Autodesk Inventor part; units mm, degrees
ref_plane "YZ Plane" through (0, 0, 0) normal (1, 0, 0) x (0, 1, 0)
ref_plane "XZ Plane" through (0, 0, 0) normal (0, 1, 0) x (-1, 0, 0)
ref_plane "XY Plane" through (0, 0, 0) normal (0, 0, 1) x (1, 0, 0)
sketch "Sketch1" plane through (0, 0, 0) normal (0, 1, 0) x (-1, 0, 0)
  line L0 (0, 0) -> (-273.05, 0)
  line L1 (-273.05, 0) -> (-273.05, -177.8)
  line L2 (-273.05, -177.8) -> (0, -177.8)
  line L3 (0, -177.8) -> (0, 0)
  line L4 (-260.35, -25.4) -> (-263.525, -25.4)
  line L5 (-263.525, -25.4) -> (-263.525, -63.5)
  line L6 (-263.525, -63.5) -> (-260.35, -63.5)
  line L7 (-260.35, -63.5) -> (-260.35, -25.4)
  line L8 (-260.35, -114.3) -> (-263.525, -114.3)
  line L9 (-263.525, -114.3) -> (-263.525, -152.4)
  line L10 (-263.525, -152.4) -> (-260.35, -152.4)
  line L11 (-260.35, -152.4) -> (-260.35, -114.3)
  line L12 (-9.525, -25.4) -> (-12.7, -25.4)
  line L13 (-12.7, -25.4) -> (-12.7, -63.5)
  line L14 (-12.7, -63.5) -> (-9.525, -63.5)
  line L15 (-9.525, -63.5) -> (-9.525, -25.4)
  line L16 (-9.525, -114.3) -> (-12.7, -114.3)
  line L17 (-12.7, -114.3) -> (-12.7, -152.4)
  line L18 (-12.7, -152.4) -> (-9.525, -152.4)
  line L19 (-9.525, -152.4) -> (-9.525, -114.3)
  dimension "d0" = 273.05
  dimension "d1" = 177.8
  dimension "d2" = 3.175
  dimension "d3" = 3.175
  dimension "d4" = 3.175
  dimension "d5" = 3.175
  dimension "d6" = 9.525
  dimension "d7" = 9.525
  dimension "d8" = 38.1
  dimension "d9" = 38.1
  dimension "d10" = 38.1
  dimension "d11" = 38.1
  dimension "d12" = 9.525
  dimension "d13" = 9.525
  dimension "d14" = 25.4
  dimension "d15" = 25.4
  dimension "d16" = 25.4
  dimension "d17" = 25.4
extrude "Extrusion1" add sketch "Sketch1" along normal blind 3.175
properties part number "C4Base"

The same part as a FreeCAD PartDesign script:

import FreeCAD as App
import Part
import Sketcher
from FreeCAD import Vector
Q = App.Units.Quantity


def add_polygon(sketch, points):
    """Adds a closed chain of lines whose ends are joined by coincident constraints."""
    first, n = sketch.GeometryCount, len(points)
    for a, b in zip(points, points[1:] + points[:1]):
        sketch.addGeometry(Part.LineSegment(App.Vector(*a, 0), App.Vector(*b, 0)), False)
    for i in range(n):
        sketch.addConstraint(Sketcher.Constraint("Coincident", first + i, 2, first + (i + 1) % n, 1))

doc = App.newDocument("Part")
body = doc.addObject("PartDesign::Body", "Body")

# Sketch on XZ plane
sketch1 = doc.addObject("Sketcher::SketchObject", "Sketch")
body.addObject(sketch1)
sketch1.AttachmentSupport = (doc.XZ_Plane, [""])
sketch1.MapMode = "FlatFace"
add_polygon(sketch1, [(0, -177.8), (0, 0), (273.1, 0), (273.1, -177.8)])  # lines 0-3
add_polygon(sketch1, [(263.5, -114.3), (260.4, -114.3), (260.4, -152.4), (263.5, -152.4)])  # lines 4-7
add_polygon(sketch1, [(12.7, -114.3), (9.5, -114.3), (9.5, -152.4), (12.7, -152.4)])  # lines 8-11
add_polygon(sketch1, [(263.5, -25.4), (260.4, -25.4), (260.4, -63.5), (263.5, -63.5)])  # lines 12-15
add_polygon(sketch1, [(12.7, -25.4), (9.5, -25.4), (9.5, -63.5), (12.7, -63.5)])  # lines 16-19
sketch1.addConstraint(Sketcher.Constraint("Vertical", 0))
sketch1.addConstraint(Sketcher.Constraint("Horizontal", 1))
sketch1.addConstraint(Sketcher.Constraint("Vertical", 2))
sketch1.addConstraint(Sketcher.Constraint("Horizontal", 3))
sketch1.addConstraint(Sketcher.Constraint("Horizontal", 4))
sketch1.addConstraint(Sketcher.Constraint("Vertical", 5))
sketch1.addConstraint(Sketcher.Constraint("Horizontal", 6))
sketch1.addConstraint(Sketcher.Constraint("Vertical", 7))
sketch1.addConstraint(Sketcher.Constraint("Horizontal", 8))
sketch1.addConstraint(Sketcher.Constraint("Vertical", 9))
sketch1.addConstraint(Sketcher.Constraint("Horizontal", 10))
sketch1.addConstraint(Sketcher.Constraint("Vertical", 11))
sketch1.addConstraint(Sketcher.Constraint("Horizontal", 12))
sketch1.addConstraint(Sketcher.Constraint("Vertical", 13))
sketch1.addConstraint(Sketcher.Constraint("Horizontal", 14))
sketch1.addConstraint(Sketcher.Constraint("Vertical", 15))
sketch1.addConstraint(Sketcher.Constraint("Horizontal", 16))
sketch1.addConstraint(Sketcher.Constraint("Vertical", 17))
sketch1.addConstraint(Sketcher.Constraint("Horizontal", 18))
sketch1.addConstraint(Sketcher.Constraint("Vertical", 19))
sketch1.addConstraint(Sketcher.Constraint("Coincident", 0, 2, -1, 1))
sketch1.addConstraint(Sketcher.Constraint("Horizontal", 7, 2, 8, 2))
sketch1.addConstraint(Sketcher.Constraint("Horizontal", 6, 2, 9, 2))
sketch1.addConstraint(Sketcher.Constraint("Horizontal", 15, 2, 16, 2))
sketch1.addConstraint(Sketcher.Constraint("Horizontal", 14, 2, 17, 2))
sketch1.addConstraint(Sketcher.Constraint("Vertical", 5, 2, 12, 2))
sketch1.addConstraint(Sketcher.Constraint("Vertical", 7, 2, 14, 2))
sketch1.addConstraint(Sketcher.Constraint("Vertical", 9, 2, 16, 2))
sketch1.addConstraint(Sketcher.Constraint("Vertical", 11, 2, 18, 2))
sketch1.addConstraint(Sketcher.Constraint("Equal", 6, 8))
sketch1.addConstraint(Sketcher.Constraint("Equal", 11, 13))
sketch1.addConstraint(Sketcher.Constraint("DistanceY", 0, 1, 0, 2, Q("7 in")))
sketch1.addConstraint(Sketcher.Constraint("DistanceY", 5, 2, 5, 1, Q("1.5 in")))
sketch1.addConstraint(Sketcher.Constraint("DistanceY", 12, 2, -1, 1, Q("1 in")))
sketch1.addConstraint(Sketcher.Constraint("DistanceY", 2, 2, 5, 2, Q("1 in")))
sketch1.addConstraint(Sketcher.Constraint("DistanceX", 1, 1, 1, 2, Q("10.75 in")))
sketch1.addConstraint(Sketcher.Constraint("DistanceX", 4, 2, 4, 1, Q("0.125 in")))
sketch1.addConstraint(Sketcher.Constraint("DistanceX", -1, 1, 8, 2, Q("0.375 in")))
sketch1.addConstraint(Sketcher.Constraint("DistanceX", 6, 2, 2, 2, Q("0.375 in")))
pad1 = doc.addObject("PartDesign::Pad", "Pad")
body.addObject(pad1)
pad1.Profile = sketch1
pad1.Length = Q("0.125 in")
pad1.Reversed = True

doc.recompute()
